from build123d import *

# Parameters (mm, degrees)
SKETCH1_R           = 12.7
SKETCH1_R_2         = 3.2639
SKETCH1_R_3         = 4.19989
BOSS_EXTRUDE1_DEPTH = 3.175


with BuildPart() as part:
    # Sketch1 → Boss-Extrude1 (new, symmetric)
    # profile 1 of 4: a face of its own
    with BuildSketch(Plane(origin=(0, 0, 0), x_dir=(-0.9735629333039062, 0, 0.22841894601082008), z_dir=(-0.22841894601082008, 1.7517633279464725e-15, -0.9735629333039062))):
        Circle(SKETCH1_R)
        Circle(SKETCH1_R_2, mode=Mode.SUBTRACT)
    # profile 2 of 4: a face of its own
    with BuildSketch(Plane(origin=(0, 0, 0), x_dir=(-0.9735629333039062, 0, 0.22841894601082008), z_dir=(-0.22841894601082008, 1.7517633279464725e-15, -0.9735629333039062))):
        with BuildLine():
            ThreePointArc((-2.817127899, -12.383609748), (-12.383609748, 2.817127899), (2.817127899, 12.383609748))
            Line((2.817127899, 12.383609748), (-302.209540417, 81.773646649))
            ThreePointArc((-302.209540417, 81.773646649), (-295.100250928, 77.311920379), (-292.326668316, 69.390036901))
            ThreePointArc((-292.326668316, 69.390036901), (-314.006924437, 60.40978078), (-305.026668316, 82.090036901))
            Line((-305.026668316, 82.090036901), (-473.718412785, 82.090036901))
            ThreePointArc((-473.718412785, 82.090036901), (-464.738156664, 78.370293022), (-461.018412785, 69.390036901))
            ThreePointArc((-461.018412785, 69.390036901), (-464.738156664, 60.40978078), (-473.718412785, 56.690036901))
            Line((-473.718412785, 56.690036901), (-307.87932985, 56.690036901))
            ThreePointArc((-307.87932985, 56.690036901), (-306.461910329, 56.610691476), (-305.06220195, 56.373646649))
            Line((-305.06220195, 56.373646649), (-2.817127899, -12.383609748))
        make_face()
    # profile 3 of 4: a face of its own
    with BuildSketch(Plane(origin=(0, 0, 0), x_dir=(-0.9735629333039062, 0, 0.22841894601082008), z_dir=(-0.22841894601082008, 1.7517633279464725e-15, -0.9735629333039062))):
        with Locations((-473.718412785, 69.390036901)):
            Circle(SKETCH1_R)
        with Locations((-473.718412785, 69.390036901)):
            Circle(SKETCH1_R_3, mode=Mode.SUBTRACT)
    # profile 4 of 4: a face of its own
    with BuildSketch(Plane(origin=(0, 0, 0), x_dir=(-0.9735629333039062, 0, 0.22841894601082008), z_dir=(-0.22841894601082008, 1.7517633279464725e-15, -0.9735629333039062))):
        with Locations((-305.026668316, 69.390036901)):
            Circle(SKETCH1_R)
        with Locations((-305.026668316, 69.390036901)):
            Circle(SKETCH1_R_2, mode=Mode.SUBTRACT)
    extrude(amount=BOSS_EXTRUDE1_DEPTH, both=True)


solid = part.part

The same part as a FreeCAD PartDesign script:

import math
import FreeCAD as App
import Part
import Sketcher
Q = App.Units.Quantity

doc = App.newDocument("Part")
body = doc.addObject("PartDesign::Body", "Body")

sketch1 = body.newObject("Sketcher::SketchObject", "Sketch")
sketch1.Placement = App.Placement(App.Vector(0, 0, 0), App.Rotation(App.Vector(-0.973562933, 0, 0.228418946), App.Vector(0, 0.999999999, 0), App.Vector(-0.228418946, 0, -0.973562933), "ZXY"))
sketch1.addGeometry([
    Part.LineSegment(App.Vector(2.8, 12.4, 0), App.Vector(-302.2, 81.8, 0)),
    Part.ArcOfCircle(Part.Circle(App.Vector(-305, 69.4, 0), App.Vector(0, 0, 1), 12.7), math.radians(77.18), math.radians(90)),
    Part.LineSegment(App.Vector(-305, 82.1, 0), App.Vector(-473.7, 82.1, 0)),
    Part.ArcOfCircle(Part.Circle(App.Vector(-473.7, 69.4, 0), App.Vector(0, 0, 1), 12.7), math.radians(90), math.radians(270)),
    Part.LineSegment(App.Vector(-473.7, 56.7, 0), App.Vector(-307.9, 56.7, 0)),
    Part.ArcOfCircle(Part.Circle(App.Vector(-307.9, 44, 0), App.Vector(0, 0, 1), 12.7), math.radians(77.18), math.radians(90)),
    Part.LineSegment(App.Vector(-305.1, 56.4, 0), App.Vector(-2.8, -12.4, 0)),
    Part.ArcOfCircle(Part.Circle(App.Vector(0, 0, 0), App.Vector(0, 0, 1), 12.7), math.radians(-103), math.radians(77)),
    Part.Circle(App.Vector(0, 0, 0), App.Vector(0, 0, 1), 3.3),
    Part.Circle(App.Vector(-305, 69.4, 0), App.Vector(0, 0, 1), 3.3),
    Part.Circle(App.Vector(-473.7, 69.4, 0), App.Vector(0, 0, 1), 4.2),
], False)
sketch1.addConstraint([
    Sketcher.Constraint("Tangent", 0, 2, 1, 1),
    Sketcher.Constraint("Tangent", 1, 2, 2, 1),
    Sketcher.Constraint("Tangent", 2, 2, 3, 1),
    Sketcher.Constraint("Tangent", 3, 2, 4, 1),
    Sketcher.Constraint("Tangent", 4, 2, 5, 2),
    Sketcher.Constraint("Tangent", 5, 1, 6, 1),
    Sketcher.Constraint("Tangent", 6, 2, 7, 1),
    Sketcher.Constraint("Tangent", 7, 2, 0, 1),
    Sketcher.Constraint("Horizontal", 2),
    Sketcher.Constraint("Horizontal", 4),
    Sketcher.Constraint("Coincident", 7, 3, -1, 1),
    Sketcher.Constraint("Coincident", 8, 3, -1, 1),
    Sketcher.Constraint("Coincident", 9, 3, 1, 3),
    Sketcher.Constraint("Coincident", 10, 3, 3, 3),
    Sketcher.Constraint("Equal", 1, 3),
    Sketcher.Constraint("Equal", 3, 5),
    Sketcher.Constraint("Equal", 5, 7),
    Sketcher.Constraint("Equal", 8, 9),
    Sketcher.Constraint("Parallel", 0, 6),
    Sketcher.Constraint("Radius", 1, Q("0.5 in")),
    Sketcher.Constraint("Diameter", 8, Q("0.257 in")),
    Sketcher.Constraint("Diameter", 10, Q("0.3307 in")),
    Sketcher.Constraint("DistanceX", 5, 1, -1, 1, Q("305.062202 mm")),
    Sketcher.Constraint("Distance", 0, Q("312.819829 mm")),
    Sketcher.Constraint("DistanceX", 2, 2, 2, 1, Q("168.691744 mm")),
])
pad1 = body.newObject("PartDesign::Pad", "Pad")
pad1.Profile = sketch1
pad1.Length = Q("0.25 in")
pad1.Midplane = True

doc.recompute()
